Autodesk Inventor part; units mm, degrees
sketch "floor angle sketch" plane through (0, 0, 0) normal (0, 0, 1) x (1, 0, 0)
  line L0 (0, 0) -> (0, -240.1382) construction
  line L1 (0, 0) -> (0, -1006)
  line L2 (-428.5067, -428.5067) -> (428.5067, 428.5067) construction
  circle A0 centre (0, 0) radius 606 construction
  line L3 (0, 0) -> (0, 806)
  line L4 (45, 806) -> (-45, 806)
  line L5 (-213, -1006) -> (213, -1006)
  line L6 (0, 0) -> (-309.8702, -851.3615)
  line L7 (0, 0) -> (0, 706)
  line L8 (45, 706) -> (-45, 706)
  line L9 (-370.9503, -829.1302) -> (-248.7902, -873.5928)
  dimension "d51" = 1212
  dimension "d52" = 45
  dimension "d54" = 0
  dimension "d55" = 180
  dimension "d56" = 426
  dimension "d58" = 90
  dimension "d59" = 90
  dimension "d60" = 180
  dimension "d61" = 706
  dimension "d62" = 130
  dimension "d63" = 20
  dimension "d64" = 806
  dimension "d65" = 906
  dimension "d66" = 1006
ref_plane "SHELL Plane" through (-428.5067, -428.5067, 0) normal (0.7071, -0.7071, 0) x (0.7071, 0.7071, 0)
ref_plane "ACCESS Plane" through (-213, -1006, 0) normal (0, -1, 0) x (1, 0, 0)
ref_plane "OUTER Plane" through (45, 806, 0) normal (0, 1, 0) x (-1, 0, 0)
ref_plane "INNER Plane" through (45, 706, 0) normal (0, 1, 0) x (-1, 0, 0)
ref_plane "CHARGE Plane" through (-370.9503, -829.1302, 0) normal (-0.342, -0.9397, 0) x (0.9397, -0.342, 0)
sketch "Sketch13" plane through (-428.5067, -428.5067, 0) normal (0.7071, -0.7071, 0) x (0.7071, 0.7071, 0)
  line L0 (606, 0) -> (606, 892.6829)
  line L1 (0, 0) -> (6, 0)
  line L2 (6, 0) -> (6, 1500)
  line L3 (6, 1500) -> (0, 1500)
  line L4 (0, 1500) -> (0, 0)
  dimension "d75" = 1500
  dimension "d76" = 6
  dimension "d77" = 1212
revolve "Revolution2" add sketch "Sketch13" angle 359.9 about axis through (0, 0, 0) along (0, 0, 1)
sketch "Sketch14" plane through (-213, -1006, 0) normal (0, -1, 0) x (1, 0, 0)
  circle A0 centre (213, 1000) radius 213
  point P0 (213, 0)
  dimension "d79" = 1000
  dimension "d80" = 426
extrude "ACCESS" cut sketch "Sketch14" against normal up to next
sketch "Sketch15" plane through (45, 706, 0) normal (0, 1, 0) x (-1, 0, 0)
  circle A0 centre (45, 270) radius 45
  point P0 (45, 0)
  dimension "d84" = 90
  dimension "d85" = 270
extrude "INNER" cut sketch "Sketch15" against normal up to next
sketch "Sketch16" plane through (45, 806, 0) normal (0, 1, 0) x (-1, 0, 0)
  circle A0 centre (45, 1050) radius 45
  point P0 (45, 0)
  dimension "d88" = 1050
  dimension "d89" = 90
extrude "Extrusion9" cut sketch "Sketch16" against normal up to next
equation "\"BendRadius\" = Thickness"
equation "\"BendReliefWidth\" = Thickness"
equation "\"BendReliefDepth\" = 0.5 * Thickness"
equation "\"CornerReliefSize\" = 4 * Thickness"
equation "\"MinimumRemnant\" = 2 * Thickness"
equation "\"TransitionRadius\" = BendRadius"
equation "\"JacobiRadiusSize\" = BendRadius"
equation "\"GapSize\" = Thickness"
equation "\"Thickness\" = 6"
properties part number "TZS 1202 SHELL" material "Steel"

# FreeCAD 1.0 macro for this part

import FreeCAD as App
import Part
import Sketcher

V = App.Vector


def add_polygon(sketch, points):
    """Adds a closed chain of lines whose ends are joined by coincident constraints."""
    first, n = sketch.GeometryCount, len(points)
    for a, b in zip(points, points[1:] + points[:1]):
        sketch.addGeometry(Part.LineSegment(App.Vector(*a, 0), App.Vector(*b, 0)), False)
    for i in range(n):
        sketch.addConstraint(Sketcher.Constraint("Coincident", first + i, 2, first + (i + 1) % n, 1))

doc = App.newDocument("Part")
body = doc.addObject("PartDesign::Body", "Body")

# Sketch on an angled plane
sketch1 = body.newObject("Sketcher::SketchObject", "Sketch")
sketch1.Placement = App.Placement(V(-428.5067, -428.5067, 0), App.Rotation(V(0.707106781, 0.707106781, 0), V(0, 0, 0.999999999), V(0.707106781, -0.707106781, 0), "ZXY"))
add_polygon(sketch1, [(0, 1500), (0, 0), (6, 0), (6, 1500)])  # lines 0-3
sketch1.addGeometry(Part.LineSegment(V(606, 0, 0), V(606, 1500, 0)), True)  # axis
sketch1.addConstraint([
    Sketcher.Constraint("Vertical", 0),
    Sketcher.Constraint("Horizontal", 1),
    Sketcher.Constraint("Vertical", 2),
    Sketcher.Constraint("Horizontal", 3),
    Sketcher.Constraint("Vertical", 4),
    Sketcher.Constraint("Coincident", 0, 2, -1, 1),
    Sketcher.Constraint("PointOnObject", 4, 1, -1),
    Sketcher.Constraint("Horizontal", 3, 2, 4, 2),
    Sketcher.Constraint("DistanceX", 1, 1, 1, 2, 6.0),
    Sketcher.Constraint("DistanceY", 0, 2, 0, 1, 1500.0),
    Sketcher.Constraint("DistanceX", -1, 1, 4, 1, 606.0),
])
revolution = body.newObject("PartDesign::Revolution", "Revolution")
revolution.Profile = sketch1
revolution.ReferenceAxis = (sketch1, ["Axis0"])
revolution.Angle = 359.9

# Sketch on XZ plane
sketch2 = body.newObject("Sketcher::SketchObject", "Sketch001")
sketch2.AttachmentSupport = (doc.getObject("XZ_Plane"), [""])
sketch2.MapMode = "FlatFace"
sketch2.AttachmentOffset = App.Placement(V(0, 0, 1006), App.Rotation())
sketch2.addGeometry(Part.Circle(V(0, 1000, 0), V(0, 0, 1), 213), False)
sketch2.addConstraint([
    Sketcher.Constraint("PointOnObject", 0, 3, -2),
    Sketcher.Constraint("Diameter", 0, 426.0),
    Sketcher.Constraint("DistanceY", -1, 1, 0, 3, 1000.0),
])
pocket1 = body.newObject("PartDesign::Pocket", "Pocket")
pocket1.Profile = sketch2
pocket1.Length = 445.0802

# Sketch on XZ plane
sketch3 = body.newObject("Sketcher::SketchObject", "Sketch002")
sketch3.AttachmentSupport = (doc.getObject("XZ_Plane"), [""])
sketch3.MapMode = "FlatFace"
sketch3.AttachmentOffset = App.Placement(V(0, 0, -706), App.Rotation())
sketch3.addGeometry(Part.Circle(V(0, 270, 0), V(0, 0, 1), 45), False)
sketch3.addConstraint([
    Sketcher.Constraint("PointOnObject", 0, 3, -2),
    Sketcher.Constraint("Diameter", 0, 90.0),
    Sketcher.Constraint("DistanceY", -1, 1, 0, 3, 270.0),
])
pocket2 = body.newObject("PartDesign::Pocket", "Pocket001")
pocket2.Profile = sketch3
pocket2.Length = 107.6899
pocket2.Reversed = True

# Sketch on XZ plane
sketch4 = body.newObject("Sketcher::SketchObject", "Sketch003")
sketch4.AttachmentSupport = (doc.getObject("XZ_Plane"), [""])
sketch4.MapMode = "FlatFace"
sketch4.AttachmentOffset = App.Placement(V(0, 0, -806), App.Rotation())
sketch4.addGeometry(Part.Circle(V(0, 1050, 0), V(0, 0, 1), 45), False)
sketch4.addConstraint([
    Sketcher.Constraint("PointOnObject", 0, 3, -2),
    Sketcher.Constraint("Diameter", 0, 90.0),
    Sketcher.Constraint("DistanceY", -1, 1, 0, 3, 1050.0),
])
pocket3 = body.newObject("PartDesign::Pocket", "Pocket002")
pocket3.Profile = sketch4
pocket3.Length = 207.6899
pocket3.Reversed = True

doc.recompute()
